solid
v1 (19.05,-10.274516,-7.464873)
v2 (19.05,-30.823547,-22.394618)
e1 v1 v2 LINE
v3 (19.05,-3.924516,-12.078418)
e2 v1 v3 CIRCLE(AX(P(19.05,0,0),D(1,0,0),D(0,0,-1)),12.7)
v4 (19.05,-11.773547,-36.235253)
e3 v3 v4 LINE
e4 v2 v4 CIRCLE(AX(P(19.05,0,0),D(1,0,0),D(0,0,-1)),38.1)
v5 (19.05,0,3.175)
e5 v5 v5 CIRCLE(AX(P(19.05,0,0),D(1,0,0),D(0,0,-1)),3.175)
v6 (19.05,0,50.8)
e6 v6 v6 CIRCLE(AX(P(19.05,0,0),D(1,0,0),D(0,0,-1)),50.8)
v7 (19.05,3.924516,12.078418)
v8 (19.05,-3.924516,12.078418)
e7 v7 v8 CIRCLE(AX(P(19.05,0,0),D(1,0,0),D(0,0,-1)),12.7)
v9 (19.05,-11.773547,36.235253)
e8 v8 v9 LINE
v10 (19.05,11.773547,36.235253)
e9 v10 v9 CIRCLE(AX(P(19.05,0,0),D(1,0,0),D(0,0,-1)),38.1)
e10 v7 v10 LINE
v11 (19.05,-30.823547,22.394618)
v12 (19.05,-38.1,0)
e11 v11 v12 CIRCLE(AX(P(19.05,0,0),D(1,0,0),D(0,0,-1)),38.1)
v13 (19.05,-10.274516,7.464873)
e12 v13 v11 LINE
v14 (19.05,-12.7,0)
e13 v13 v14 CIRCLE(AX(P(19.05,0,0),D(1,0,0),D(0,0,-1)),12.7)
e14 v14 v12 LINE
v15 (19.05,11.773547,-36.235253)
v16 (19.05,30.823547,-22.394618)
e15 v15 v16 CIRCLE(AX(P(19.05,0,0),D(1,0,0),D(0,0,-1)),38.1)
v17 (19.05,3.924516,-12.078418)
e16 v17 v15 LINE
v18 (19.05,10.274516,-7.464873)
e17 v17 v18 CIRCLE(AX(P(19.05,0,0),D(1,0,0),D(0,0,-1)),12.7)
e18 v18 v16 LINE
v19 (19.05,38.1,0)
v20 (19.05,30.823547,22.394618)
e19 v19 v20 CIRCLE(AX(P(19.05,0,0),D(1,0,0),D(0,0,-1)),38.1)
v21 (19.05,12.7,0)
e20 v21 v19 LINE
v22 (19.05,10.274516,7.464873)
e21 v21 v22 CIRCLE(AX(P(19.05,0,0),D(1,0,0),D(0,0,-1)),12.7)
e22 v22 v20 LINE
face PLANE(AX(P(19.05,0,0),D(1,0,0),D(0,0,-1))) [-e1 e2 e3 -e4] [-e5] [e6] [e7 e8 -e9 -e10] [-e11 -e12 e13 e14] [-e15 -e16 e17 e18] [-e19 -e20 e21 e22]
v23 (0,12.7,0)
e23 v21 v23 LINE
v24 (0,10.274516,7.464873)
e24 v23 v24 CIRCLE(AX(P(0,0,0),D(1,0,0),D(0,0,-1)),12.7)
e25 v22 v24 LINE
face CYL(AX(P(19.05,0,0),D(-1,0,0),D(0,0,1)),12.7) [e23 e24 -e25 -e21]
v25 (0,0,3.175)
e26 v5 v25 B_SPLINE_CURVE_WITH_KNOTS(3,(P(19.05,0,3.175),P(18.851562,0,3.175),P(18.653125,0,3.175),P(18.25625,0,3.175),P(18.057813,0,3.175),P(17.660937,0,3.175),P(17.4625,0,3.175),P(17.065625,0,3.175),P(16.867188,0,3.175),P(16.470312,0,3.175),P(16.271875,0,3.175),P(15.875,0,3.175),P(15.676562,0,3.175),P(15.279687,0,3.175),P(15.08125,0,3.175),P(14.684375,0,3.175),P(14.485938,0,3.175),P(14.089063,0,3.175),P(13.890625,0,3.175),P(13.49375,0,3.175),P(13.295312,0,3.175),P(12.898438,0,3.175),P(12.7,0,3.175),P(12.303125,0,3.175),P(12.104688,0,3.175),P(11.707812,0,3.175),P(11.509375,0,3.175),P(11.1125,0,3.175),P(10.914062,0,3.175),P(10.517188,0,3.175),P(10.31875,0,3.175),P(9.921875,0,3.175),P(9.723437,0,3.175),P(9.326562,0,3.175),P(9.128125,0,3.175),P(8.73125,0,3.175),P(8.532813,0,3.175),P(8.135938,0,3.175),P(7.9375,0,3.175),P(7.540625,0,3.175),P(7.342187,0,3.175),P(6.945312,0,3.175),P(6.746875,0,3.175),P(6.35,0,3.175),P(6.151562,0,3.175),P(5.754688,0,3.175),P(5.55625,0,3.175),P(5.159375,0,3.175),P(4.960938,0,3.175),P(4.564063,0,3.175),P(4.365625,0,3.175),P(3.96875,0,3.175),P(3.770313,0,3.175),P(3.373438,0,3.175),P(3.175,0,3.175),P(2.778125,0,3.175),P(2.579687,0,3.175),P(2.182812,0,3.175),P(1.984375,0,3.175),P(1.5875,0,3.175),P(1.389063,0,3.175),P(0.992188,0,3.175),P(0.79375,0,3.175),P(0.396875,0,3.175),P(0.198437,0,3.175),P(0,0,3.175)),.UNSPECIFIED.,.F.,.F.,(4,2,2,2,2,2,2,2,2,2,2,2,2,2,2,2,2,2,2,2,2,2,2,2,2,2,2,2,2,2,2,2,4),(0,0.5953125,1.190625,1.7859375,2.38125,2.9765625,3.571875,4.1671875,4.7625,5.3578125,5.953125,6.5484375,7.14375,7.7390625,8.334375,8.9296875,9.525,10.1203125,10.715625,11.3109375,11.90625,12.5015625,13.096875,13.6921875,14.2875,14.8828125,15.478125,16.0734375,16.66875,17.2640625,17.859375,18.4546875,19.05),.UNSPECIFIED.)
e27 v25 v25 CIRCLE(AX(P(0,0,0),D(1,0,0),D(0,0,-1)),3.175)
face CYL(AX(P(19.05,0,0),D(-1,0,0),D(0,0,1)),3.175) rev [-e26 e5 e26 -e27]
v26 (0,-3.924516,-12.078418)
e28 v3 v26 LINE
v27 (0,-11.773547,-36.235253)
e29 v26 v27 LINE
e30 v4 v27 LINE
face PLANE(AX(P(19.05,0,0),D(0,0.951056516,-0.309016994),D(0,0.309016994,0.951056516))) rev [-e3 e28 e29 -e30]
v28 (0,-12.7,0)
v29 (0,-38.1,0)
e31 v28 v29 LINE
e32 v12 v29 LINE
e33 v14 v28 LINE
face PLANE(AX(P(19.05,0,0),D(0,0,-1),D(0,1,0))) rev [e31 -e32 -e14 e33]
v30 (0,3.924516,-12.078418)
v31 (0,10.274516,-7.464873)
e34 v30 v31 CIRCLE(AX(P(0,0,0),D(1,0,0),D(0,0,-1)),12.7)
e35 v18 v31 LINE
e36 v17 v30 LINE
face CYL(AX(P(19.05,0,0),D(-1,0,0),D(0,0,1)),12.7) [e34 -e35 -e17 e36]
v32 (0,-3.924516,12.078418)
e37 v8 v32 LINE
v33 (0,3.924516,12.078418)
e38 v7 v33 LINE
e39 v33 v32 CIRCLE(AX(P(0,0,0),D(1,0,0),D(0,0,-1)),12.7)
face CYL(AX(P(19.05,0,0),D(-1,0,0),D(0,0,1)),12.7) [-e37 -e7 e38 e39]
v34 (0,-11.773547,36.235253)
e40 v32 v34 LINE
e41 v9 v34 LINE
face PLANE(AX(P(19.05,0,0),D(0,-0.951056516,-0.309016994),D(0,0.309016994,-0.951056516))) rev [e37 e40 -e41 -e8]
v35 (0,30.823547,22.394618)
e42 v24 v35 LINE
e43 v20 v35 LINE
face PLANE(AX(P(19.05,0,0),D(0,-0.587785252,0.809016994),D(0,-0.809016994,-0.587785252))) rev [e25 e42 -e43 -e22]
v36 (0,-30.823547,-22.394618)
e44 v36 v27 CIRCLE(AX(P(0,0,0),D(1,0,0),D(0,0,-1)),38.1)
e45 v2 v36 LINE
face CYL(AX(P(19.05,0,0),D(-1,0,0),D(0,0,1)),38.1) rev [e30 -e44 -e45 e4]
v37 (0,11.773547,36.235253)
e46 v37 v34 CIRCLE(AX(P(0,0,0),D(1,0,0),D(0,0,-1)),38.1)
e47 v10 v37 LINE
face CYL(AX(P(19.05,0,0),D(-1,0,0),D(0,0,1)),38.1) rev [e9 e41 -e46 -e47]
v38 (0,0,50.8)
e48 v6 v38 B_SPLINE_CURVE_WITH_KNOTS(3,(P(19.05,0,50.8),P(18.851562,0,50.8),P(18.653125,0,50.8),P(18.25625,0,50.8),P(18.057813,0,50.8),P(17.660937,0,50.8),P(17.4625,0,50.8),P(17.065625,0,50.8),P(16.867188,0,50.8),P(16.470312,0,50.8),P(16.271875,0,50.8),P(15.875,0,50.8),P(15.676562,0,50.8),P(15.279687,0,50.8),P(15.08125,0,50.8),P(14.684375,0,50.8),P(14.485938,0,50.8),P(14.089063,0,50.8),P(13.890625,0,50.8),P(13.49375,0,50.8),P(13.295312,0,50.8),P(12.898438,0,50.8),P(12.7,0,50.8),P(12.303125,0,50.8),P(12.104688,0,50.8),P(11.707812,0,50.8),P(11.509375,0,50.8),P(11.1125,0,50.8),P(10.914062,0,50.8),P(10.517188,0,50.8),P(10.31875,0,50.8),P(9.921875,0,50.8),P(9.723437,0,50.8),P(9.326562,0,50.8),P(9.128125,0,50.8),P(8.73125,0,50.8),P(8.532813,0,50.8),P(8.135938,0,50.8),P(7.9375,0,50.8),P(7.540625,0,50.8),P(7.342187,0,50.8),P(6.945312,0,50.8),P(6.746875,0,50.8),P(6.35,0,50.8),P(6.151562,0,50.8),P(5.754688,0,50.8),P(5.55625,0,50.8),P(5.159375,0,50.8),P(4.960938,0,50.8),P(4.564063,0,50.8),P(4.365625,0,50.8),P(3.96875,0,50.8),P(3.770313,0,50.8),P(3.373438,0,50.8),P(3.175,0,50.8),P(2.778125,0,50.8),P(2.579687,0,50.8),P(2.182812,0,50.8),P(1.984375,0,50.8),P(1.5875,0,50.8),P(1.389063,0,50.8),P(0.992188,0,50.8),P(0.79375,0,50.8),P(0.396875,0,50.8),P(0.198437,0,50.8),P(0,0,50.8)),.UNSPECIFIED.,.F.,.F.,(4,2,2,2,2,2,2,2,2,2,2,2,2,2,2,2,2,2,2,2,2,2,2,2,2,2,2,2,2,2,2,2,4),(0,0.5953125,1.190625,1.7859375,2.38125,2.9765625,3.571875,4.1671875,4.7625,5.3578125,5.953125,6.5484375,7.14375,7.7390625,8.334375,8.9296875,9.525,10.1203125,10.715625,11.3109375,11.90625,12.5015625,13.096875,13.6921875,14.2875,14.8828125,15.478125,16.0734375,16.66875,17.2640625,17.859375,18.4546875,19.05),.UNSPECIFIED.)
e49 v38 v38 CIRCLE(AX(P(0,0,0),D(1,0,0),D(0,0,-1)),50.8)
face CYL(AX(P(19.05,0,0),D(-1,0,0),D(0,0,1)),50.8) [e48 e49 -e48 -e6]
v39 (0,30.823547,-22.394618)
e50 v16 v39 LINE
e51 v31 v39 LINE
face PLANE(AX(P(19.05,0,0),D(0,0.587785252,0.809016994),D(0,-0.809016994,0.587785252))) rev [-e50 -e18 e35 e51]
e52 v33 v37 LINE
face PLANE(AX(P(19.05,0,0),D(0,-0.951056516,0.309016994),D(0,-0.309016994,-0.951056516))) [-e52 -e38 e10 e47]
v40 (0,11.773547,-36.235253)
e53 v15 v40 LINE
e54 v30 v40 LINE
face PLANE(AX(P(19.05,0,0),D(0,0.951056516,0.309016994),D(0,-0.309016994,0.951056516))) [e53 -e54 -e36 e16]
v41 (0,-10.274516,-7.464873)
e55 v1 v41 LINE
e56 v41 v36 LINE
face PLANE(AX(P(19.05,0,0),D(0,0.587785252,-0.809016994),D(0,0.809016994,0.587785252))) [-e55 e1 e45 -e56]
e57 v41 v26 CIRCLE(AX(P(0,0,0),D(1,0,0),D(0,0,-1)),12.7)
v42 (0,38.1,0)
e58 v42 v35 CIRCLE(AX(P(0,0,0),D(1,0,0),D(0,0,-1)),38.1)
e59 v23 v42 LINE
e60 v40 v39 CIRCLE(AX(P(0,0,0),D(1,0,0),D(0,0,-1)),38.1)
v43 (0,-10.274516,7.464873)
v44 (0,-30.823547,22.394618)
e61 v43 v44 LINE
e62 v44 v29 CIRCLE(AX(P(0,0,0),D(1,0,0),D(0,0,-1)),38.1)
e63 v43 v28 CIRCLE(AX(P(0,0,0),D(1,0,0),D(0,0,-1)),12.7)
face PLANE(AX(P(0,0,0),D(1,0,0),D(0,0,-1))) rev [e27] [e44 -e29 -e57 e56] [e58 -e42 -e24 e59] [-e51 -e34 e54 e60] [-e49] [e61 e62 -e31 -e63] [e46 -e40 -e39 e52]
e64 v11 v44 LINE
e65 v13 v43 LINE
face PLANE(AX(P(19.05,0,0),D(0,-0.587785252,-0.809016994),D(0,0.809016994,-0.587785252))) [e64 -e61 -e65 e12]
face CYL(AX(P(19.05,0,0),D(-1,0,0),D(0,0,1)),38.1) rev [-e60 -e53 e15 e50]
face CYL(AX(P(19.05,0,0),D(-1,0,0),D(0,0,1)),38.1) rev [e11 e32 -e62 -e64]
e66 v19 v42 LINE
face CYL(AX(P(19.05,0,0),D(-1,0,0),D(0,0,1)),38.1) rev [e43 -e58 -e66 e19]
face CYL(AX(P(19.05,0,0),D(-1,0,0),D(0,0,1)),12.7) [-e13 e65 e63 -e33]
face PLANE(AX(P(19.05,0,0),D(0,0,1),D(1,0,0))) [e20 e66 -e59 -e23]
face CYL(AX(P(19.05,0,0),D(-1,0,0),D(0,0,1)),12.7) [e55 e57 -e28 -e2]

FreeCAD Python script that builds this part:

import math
import FreeCAD as App
import Part
import Sketcher

V = App.Vector
Q = App.Units.Quantity

doc = App.newDocument("Part")
body = doc.addObject("PartDesign::Body", "Body")

sketch1 = doc.addObject("Sketcher::SketchObject", "Sketch")
body.addObject(sketch1)
sketch1.AttachmentSupport = (doc.YZ_Plane, [""])
sketch1.MapMode = "FlatFace"
sketch1.addGeometry([
    Part.Circle(V(0, 0, 0), V(0, 0, 1), 50.8),
    Part.ArcOfCircle(Part.Circle(V(0, 0, 0), V(0, 0, 1), 38.1), math.radians(-72), math.radians(-36)),
    Part.LineSegment(V(11.8, -36.2, 0), V(3.9, -12.1, 0)),
    Part.ArcOfCircle(Part.Circle(V(0, 0, 0), V(0, 0, 1), 12.7), math.radians(-72), math.radians(-36)),
    Part.LineSegment(V(10.3, -7.5, 0), V(30.8, -22.4, 0)),
    Part.ArcOfCircle(Part.Circle(V(0, 0, 0), V(0, 0, 1), 38.1), math.radians(0), math.radians(36)),
    Part.LineSegment(V(38.1, 0, 0), V(12.7, 0, 0)),
    Part.ArcOfCircle(Part.Circle(V(0, 0, 0), V(0, 0, 1), 12.7), math.radians(0), math.radians(36)),
    Part.LineSegment(V(10.3, 7.5, 0), V(30.8, 22.4, 0)),
    Part.ArcOfCircle(Part.Circle(V(0, 0, 0), V(0, 0, 1), 38.1), math.radians(-144), math.radians(-108)),
    Part.LineSegment(V(-30.8, -22.4, 0), V(-10.3, -7.5, 0)),
    Part.ArcOfCircle(Part.Circle(V(0, 0, 0), V(0, 0, 1), 12.7), math.radians(-144), math.radians(-108)),
    Part.LineSegment(V(-3.9, -12.1, 0), V(-11.8, -36.2, 0)),
    Part.Circle(V(0, 0, 0), V(0, 0, 1), 3.2),
    Part.ArcOfCircle(Part.Circle(V(0, 0, 0), V(0, 0, 1), 38.1), math.radians(72), math.radians(108)),
    Part.LineSegment(V(11.8, 36.2, 0), V(3.9, 12.1, 0)),
    Part.ArcOfCircle(Part.Circle(V(0, 0, 0), V(0, 0, 1), 12.7), math.radians(72), math.radians(108)),
    Part.LineSegment(V(-3.9, 12.1, 0), V(-11.8, 36.2, 0)),
    Part.ArcOfCircle(Part.Circle(V(0, 0, 0), V(0, 0, 1), 38.1), math.radians(144), math.radians(180)),
    Part.LineSegment(V(-30.8, 22.4, 0), V(-10.3, 7.5, 0)),
    Part.ArcOfCircle(Part.Circle(V(0, 0, 0), V(0, 0, 1), 12.7), math.radians(144), math.radians(180)),
    Part.LineSegment(V(-12.7, 0, 0), V(-38.1, 0, 0)),
], False)
sketch1.addConstraint([
    Sketcher.Constraint("Coincident", 1, 1, 2, 1),
    Sketcher.Constraint("Coincident", 2, 2, 3, 1),
    Sketcher.Constraint("Coincident", 3, 2, 4, 1),
    Sketcher.Constraint("Coincident", 4, 2, 1, 2),
    Sketcher.Constraint("Coincident", 5, 1, 6, 1),
    Sketcher.Constraint("Coincident", 6, 2, 7, 1),
    Sketcher.Constraint("Coincident", 7, 2, 8, 1),
    Sketcher.Constraint("Coincident", 8, 2, 5, 2),
    Sketcher.Constraint("Coincident", 9, 1, 10, 1),
    Sketcher.Constraint("Coincident", 10, 2, 11, 1),
    Sketcher.Constraint("Coincident", 11, 2, 12, 1),
    Sketcher.Constraint("Coincident", 12, 2, 9, 2),
    Sketcher.Constraint("Coincident", 14, 1, 15, 1),
    Sketcher.Constraint("Coincident", 15, 2, 16, 1),
    Sketcher.Constraint("Coincident", 16, 2, 17, 1),
    Sketcher.Constraint("Coincident", 17, 2, 14, 2),
    Sketcher.Constraint("Coincident", 18, 1, 19, 1),
    Sketcher.Constraint("Coincident", 19, 2, 20, 1),
    Sketcher.Constraint("Coincident", 20, 2, 21, 1),
    Sketcher.Constraint("Coincident", 21, 2, 18, 2),
    Sketcher.Constraint("Horizontal", 6),
    Sketcher.Constraint("Horizontal", 21),
    Sketcher.Constraint("Coincident", 0, 3, -1, 1),
    Sketcher.Constraint("Coincident", 1, 3, -1, 1),
    Sketcher.Constraint("Coincident", 3, 3, -1, 1),
    Sketcher.Constraint("Coincident", 5, 3, -1, 1),
    Sketcher.Constraint("Coincident", 7, 3, -1, 1),
    Sketcher.Constraint("Coincident", 9, 3, -1, 1),
    Sketcher.Constraint("Coincident", 11, 3, -1, 1),
    Sketcher.Constraint("Coincident", 13, 3, -1, 1),
    Sketcher.Constraint("Coincident", 14, 3, -1, 1),
    Sketcher.Constraint("Coincident", 16, 3, -1, 1),
    Sketcher.Constraint("Coincident", 18, 3, -1, 1),
    Sketcher.Constraint("Coincident", 20, 3, -1, 1),
    Sketcher.Constraint("Equal", 1, 5),
    Sketcher.Constraint("Equal", 3, 7),
    Sketcher.Constraint("Equal", 5, 9),
    Sketcher.Constraint("Equal", 7, 11),
    Sketcher.Constraint("Equal", 9, 14),
    Sketcher.Constraint("Equal", 11, 16),
    Sketcher.Constraint("Equal", 14, 18),
    Sketcher.Constraint("Equal", 16, 20),
    Sketcher.Constraint("PointOnObject", 5, 1, -1),
    Sketcher.Constraint("PointOnObject", 20, 2, -1),
    Sketcher.Constraint("Parallel", 8, 10),
    Sketcher.Constraint("Parallel", 12, 15),
    Sketcher.Constraint("Parallel", 2, 17),
    Sketcher.Constraint("Parallel", 4, 19),
    Sketcher.Constraint("Horizontal", 4, 2, 9, 1),
    Sketcher.Constraint("Horizontal", 3, 2, 10, 2),
    Sketcher.Constraint("Horizontal", 2, 2, 11, 2),
    Sketcher.Constraint("Horizontal", 1, 1, 12, 2),
    Sketcher.Constraint("Horizontal", 15, 2, 16, 2),
    Sketcher.Constraint("Horizontal", 8, 2, 18, 1),
    Sketcher.Constraint("Vertical", 3, 2, 7, 2),
    Sketcher.Constraint("Vertical", 1, 1, 14, 1),
    Sketcher.Constraint("Diameter", 0, Q("4 in")),
    Sketcher.Constraint("Radius", 1, Q("1.5 in")),
    Sketcher.Constraint("Radius", 3, Q("0.5 in")),
    Sketcher.Constraint("Diameter", 13, Q("0.25 in")),
    Sketcher.Constraint("Angle", 2, Q("108 deg")),
    Sketcher.Constraint("Angle", 4, Q("-36 deg")),
    Sketcher.Constraint("DistanceX", 2, 2, 3, 2, Q("0.25 in")),
    Sketcher.Constraint("DistanceY", 4, 2, 2, 2, 10.3162),
])
pad1 = doc.addObject("PartDesign::Pad", "Pad")
body.addObject(pad1)
pad1.Profile = sketch1
pad1.Length = Q("0.75 in")

doc.recompute()
